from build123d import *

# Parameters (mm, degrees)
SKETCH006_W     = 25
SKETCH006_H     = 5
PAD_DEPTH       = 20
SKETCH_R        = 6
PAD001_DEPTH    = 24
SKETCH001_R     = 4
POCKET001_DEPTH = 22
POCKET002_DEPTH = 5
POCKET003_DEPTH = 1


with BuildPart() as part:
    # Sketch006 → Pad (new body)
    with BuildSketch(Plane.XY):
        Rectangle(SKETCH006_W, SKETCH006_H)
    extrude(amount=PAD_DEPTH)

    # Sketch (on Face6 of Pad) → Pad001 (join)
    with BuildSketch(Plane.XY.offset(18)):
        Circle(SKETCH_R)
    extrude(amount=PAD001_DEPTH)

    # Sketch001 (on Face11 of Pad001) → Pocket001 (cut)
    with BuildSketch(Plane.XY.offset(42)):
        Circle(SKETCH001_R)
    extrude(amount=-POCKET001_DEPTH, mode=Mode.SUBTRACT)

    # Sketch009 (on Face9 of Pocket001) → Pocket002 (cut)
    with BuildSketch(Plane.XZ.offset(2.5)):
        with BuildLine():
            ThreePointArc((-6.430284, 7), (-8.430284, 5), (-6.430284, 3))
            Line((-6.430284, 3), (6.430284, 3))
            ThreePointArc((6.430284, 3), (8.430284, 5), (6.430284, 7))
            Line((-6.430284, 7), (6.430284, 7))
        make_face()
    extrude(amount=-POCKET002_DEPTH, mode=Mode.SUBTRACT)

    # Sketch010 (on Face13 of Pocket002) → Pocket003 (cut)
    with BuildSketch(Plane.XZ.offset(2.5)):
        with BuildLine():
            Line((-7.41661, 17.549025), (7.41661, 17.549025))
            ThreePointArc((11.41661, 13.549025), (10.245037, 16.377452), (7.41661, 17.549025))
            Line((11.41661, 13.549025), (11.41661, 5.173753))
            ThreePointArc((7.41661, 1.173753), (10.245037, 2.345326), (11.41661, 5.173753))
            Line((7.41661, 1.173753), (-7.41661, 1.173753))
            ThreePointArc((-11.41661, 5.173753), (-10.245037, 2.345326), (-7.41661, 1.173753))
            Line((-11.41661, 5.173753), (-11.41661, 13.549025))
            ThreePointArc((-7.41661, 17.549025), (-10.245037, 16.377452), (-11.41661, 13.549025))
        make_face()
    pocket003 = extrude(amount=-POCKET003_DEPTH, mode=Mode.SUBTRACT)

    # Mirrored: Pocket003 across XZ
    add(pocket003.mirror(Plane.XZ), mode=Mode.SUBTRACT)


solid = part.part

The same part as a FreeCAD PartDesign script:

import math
import FreeCAD as App
import Part
import Sketcher
from FreeCAD import Vector
Q = App.Units.Quantity


def add_polygon(sketch, points):
    """Adds a closed chain of lines whose ends are joined by coincident constraints."""
    first, n = sketch.GeometryCount, len(points)
    for a, b in zip(points, points[1:] + points[:1]):
        sketch.addGeometry(Part.LineSegment(App.Vector(*a, 0), App.Vector(*b, 0)), False)
    for i in range(n):
        sketch.addConstraint(Sketcher.Constraint("Coincident", first + i, 2, first + (i + 1) % n, 1))

doc = App.newDocument("Part")
params = doc.addObject("Spreadsheet::Sheet", "Params")
for row, (alias, value) in enumerate([
    ("sketch1_width", "25 mm"),
    ("sketch1_height", "5 mm"),
    ("pad1_length", "20 mm"),
    ("sketch2_diameter", "12 mm"),
    ("pad2_length", "24 mm"),
    ("sketch3_diameter", "8 mm"),
    ("pocket1_length", "22 mm"),
    ("sketch4_radius", "2 mm"),
    ("pocket2_length", "5 mm"),
    ("sketch5_radius", "4 mm"),
    ("pocket3_length", "1 mm"),
], start=1):
    params.set(f"A{row}", alias)
    params.set(f"B{row}", "=" + value)
    params.setAlias(f"B{row}", alias)

body = doc.addObject("PartDesign::Body", "Body")

sketch1 = body.newObject("Sketcher::SketchObject", "Sketch")
sketch1.AttachmentSupport = (doc.getObject("XY_Plane"), [""])
sketch1.MapMode = "FlatFace"
add_polygon(sketch1, [(-12.5, 2.5), (-12.5, -2.5), (12.5, -2.5), (12.5, 2.5)])
sketch1.addConstraint([
    Sketcher.Constraint("Vertical", 0),
    Sketcher.Constraint("Horizontal", 1),
    Sketcher.Constraint("Vertical", 2),
    Sketcher.Constraint("Horizontal", 3),
    Sketcher.Constraint("Symmetric", 0, 2, 2, 2, -1, 1),
    Sketcher.Constraint("DistanceX", 1, 1, 1, 2, Q("25 mm")),
    Sketcher.Constraint("DistanceY", 0, 2, 0, 1, Q("5 mm")),
])
sketch1.setExpression("Constraints[9]", "Params.sketch1_width")
sketch1.setExpression("Constraints[10]", "Params.sketch1_height")
pad1 = body.newObject("PartDesign::Pad", "Pad")
pad1.Profile = sketch1
pad1.setExpression("Length", "Params.pad1_length")

sketch2 = body.newObject("Sketcher::SketchObject", "Sketch001")
sketch2.AttachmentSupport = (doc.getObject("XY_Plane"), [""])
sketch2.MapMode = "FlatFace"
sketch2.AttachmentOffset = App.Placement(Vector(0, 0, 18), App.Rotation())
sketch2.addGeometry(Part.Circle(Vector(0, 0, 0), Vector(0, 0, 1), 6), False)
sketch2.addConstraint([
    Sketcher.Constraint("Coincident", 0, 3, -1, 1),
    Sketcher.Constraint("Diameter", 0, Q("12 mm")),
])
sketch2.setExpression("Constraints[1]", "Params.sketch2_diameter")
pad2 = body.newObject("PartDesign::Pad", "Pad001")
pad2.Profile = sketch2
pad2.setExpression("Length", "Params.pad2_length")

sketch3 = body.newObject("Sketcher::SketchObject", "Sketch002")
sketch3.AttachmentSupport = (doc.getObject("XY_Plane"), [""])
sketch3.MapMode = "FlatFace"
sketch3.AttachmentOffset = App.Placement(Vector(0, 0, 42), App.Rotation())
sketch3.addGeometry(Part.Circle(Vector(0, 0, 0), Vector(0, 0, 1), 4), False)
sketch3.addConstraint([
    Sketcher.Constraint("Coincident", 0, 3, -1, 1),
    Sketcher.Constraint("Diameter", 0, Q("8 mm")),
])
sketch3.setExpression("Constraints[1]", "Params.sketch3_diameter")
pocket1 = body.newObject("PartDesign::Pocket", "Pocket")
pocket1.Profile = sketch3
pocket1.setExpression("Length", "Params.pocket1_length")

sketch4 = body.newObject("Sketcher::SketchObject", "Sketch003")
sketch4.AttachmentSupport = (doc.getObject("XZ_Plane"), [""])
sketch4.MapMode = "FlatFace"
sketch4.AttachmentOffset = App.Placement(Vector(0, 0, 2.5), App.Rotation())
sketch4.addGeometry([
    Part.ArcOfCircle(Part.Circle(Vector(-6.430284, 5, 0), Vector(0, 0, 1), 2), math.radians(90), math.radians(270)),
    Part.LineSegment(Vector(-6.430284, 3, 0), Vector(6.430284, 3, 0)),
    Part.ArcOfCircle(Part.Circle(Vector(6.430284, 5, 0), Vector(0, 0, 1), 2), math.radians(-90), math.radians(90)),
    Part.LineSegment(Vector(6.430284, 7, 0), Vector(-6.430284, 7, 0)),
], False)
sketch4.addConstraint([
    Sketcher.Constraint("Tangent", 0, 2, 1, 1),
    Sketcher.Constraint("Tangent", 1, 2, 2, 1),
    Sketcher.Constraint("Tangent", 2, 2, 3, 1),
    Sketcher.Constraint("Tangent", 3, 2, 0, 1),
    Sketcher.Constraint("Horizontal", 1),
    Sketcher.Constraint("Horizontal", 3),
    Sketcher.Constraint("Radius", 0, Q("2 mm")),
    Sketcher.Constraint("DistanceY", -1, 1, 0, 3, Q("5 mm")),
    Sketcher.Constraint("DistanceX", 1, 1, 1, 2, Q("12.860568 mm")),
    Sketcher.Constraint("DistanceX", 0, 3, -1, 1, Q("6.430284 mm")),
])
sketch4.setExpression("Constraints[6]", "Params.sketch4_radius")
pocket2 = body.newObject("PartDesign::Pocket", "Pocket001")
pocket2.Profile = sketch4
pocket2.setExpression("Length", "Params.pocket2_length")

sketch5 = body.newObject("Sketcher::SketchObject", "Sketch004")
sketch5.AttachmentSupport = (doc.getObject("XZ_Plane"), [""])
sketch5.MapMode = "FlatFace"
sketch5.AttachmentOffset = App.Placement(Vector(0, 0, 2.5), App.Rotation())
sketch5.addGeometry([
    Part.LineSegment(Vector(7.41661, 17.549025, 0), Vector(-7.41661, 17.549025, 0)),
    Part.ArcOfCircle(Part.Circle(Vector(-7.41661, 13.549025, 0), Vector(0, 0, 1), 4), math.radians(90.000006), math.radians(179.999994)),
    Part.LineSegment(Vector(-11.41661, 13.549025, 0), Vector(-11.41661, 5.173753, 0)),
    Part.ArcOfCircle(Part.Circle(Vector(-7.41661, 5.173753, 0), Vector(0, 0, 1), 4), math.radians(-179.999994), math.radians(-90.000006)),
    Part.LineSegment(Vector(-7.41661, 1.173753, 0), Vector(7.41661, 1.173753, 0)),
    Part.ArcOfCircle(Part.Circle(Vector(7.41661, 5.173753, 0), Vector(0, 0, 1), 4), math.radians(-89.999994), math.radians(-0.000006)),
    Part.LineSegment(Vector(11.41661, 5.173753, 0), Vector(11.41661, 13.549025, 0)),
    Part.ArcOfCircle(Part.Circle(Vector(7.41661, 13.549025, 0), Vector(0, 0, 1), 4), math.radians(0.000006), math.radians(89.999994)),
], False)
sketch5.addConstraint([
    Sketcher.Constraint("Tangent", 0, 2, 1, 1),
    Sketcher.Constraint("Tangent", 1, 2, 2, 1),
    Sketcher.Constraint("Tangent", 2, 2, 3, 1),
    Sketcher.Constraint("Tangent", 3, 2, 4, 1),
    Sketcher.Constraint("Tangent", 4, 2, 5, 1),
    Sketcher.Constraint("Tangent", 5, 2, 6, 1),
    Sketcher.Constraint("Tangent", 6, 2, 7, 1),
    Sketcher.Constraint("Tangent", 7, 2, 0, 1),
    Sketcher.Constraint("Horizontal", 0),
    Sketcher.Constraint("Vertical", 2),
    Sketcher.Constraint("Horizontal", 4),
    Sketcher.Constraint("Vertical", 6),
    Sketcher.Constraint("Equal", 1, 3),
    Sketcher.Constraint("Equal", 3, 5),
    Sketcher.Constraint("Equal", 5, 7),
    Sketcher.Constraint("Radius", 1, Q("4 mm")),
    Sketcher.Constraint("DistanceX", 0, 2, 0, 1, Q("14.83322 mm")),
    Sketcher.Constraint("DistanceY", 2, 2, 2, 1, Q("8.375272 mm")),
    Sketcher.Constraint("DistanceX", 1, 3, -1, 1, Q("7.41661 mm")),
    Sketcher.Constraint("DistanceY", -1, 1, 1, 3, Q("13.549025 mm")),
])
sketch5.setExpression("Constraints[15]", "Params.sketch5_radius")
pocket3 = body.newObject("PartDesign::Pocket", "Pocket002")
pocket3.Profile = sketch5
pocket3.setExpression("Length", "Params.pocket3_length")
doc.recompute()

mirrored = body.newObject("PartDesign::Mirrored", "Mirrored")
mirrored.Originals = [pocket3]
mirrored.MirrorPlane = (doc.getObject("XZ_Plane"), [""])
body.Tip = mirrored

doc.recompute()
